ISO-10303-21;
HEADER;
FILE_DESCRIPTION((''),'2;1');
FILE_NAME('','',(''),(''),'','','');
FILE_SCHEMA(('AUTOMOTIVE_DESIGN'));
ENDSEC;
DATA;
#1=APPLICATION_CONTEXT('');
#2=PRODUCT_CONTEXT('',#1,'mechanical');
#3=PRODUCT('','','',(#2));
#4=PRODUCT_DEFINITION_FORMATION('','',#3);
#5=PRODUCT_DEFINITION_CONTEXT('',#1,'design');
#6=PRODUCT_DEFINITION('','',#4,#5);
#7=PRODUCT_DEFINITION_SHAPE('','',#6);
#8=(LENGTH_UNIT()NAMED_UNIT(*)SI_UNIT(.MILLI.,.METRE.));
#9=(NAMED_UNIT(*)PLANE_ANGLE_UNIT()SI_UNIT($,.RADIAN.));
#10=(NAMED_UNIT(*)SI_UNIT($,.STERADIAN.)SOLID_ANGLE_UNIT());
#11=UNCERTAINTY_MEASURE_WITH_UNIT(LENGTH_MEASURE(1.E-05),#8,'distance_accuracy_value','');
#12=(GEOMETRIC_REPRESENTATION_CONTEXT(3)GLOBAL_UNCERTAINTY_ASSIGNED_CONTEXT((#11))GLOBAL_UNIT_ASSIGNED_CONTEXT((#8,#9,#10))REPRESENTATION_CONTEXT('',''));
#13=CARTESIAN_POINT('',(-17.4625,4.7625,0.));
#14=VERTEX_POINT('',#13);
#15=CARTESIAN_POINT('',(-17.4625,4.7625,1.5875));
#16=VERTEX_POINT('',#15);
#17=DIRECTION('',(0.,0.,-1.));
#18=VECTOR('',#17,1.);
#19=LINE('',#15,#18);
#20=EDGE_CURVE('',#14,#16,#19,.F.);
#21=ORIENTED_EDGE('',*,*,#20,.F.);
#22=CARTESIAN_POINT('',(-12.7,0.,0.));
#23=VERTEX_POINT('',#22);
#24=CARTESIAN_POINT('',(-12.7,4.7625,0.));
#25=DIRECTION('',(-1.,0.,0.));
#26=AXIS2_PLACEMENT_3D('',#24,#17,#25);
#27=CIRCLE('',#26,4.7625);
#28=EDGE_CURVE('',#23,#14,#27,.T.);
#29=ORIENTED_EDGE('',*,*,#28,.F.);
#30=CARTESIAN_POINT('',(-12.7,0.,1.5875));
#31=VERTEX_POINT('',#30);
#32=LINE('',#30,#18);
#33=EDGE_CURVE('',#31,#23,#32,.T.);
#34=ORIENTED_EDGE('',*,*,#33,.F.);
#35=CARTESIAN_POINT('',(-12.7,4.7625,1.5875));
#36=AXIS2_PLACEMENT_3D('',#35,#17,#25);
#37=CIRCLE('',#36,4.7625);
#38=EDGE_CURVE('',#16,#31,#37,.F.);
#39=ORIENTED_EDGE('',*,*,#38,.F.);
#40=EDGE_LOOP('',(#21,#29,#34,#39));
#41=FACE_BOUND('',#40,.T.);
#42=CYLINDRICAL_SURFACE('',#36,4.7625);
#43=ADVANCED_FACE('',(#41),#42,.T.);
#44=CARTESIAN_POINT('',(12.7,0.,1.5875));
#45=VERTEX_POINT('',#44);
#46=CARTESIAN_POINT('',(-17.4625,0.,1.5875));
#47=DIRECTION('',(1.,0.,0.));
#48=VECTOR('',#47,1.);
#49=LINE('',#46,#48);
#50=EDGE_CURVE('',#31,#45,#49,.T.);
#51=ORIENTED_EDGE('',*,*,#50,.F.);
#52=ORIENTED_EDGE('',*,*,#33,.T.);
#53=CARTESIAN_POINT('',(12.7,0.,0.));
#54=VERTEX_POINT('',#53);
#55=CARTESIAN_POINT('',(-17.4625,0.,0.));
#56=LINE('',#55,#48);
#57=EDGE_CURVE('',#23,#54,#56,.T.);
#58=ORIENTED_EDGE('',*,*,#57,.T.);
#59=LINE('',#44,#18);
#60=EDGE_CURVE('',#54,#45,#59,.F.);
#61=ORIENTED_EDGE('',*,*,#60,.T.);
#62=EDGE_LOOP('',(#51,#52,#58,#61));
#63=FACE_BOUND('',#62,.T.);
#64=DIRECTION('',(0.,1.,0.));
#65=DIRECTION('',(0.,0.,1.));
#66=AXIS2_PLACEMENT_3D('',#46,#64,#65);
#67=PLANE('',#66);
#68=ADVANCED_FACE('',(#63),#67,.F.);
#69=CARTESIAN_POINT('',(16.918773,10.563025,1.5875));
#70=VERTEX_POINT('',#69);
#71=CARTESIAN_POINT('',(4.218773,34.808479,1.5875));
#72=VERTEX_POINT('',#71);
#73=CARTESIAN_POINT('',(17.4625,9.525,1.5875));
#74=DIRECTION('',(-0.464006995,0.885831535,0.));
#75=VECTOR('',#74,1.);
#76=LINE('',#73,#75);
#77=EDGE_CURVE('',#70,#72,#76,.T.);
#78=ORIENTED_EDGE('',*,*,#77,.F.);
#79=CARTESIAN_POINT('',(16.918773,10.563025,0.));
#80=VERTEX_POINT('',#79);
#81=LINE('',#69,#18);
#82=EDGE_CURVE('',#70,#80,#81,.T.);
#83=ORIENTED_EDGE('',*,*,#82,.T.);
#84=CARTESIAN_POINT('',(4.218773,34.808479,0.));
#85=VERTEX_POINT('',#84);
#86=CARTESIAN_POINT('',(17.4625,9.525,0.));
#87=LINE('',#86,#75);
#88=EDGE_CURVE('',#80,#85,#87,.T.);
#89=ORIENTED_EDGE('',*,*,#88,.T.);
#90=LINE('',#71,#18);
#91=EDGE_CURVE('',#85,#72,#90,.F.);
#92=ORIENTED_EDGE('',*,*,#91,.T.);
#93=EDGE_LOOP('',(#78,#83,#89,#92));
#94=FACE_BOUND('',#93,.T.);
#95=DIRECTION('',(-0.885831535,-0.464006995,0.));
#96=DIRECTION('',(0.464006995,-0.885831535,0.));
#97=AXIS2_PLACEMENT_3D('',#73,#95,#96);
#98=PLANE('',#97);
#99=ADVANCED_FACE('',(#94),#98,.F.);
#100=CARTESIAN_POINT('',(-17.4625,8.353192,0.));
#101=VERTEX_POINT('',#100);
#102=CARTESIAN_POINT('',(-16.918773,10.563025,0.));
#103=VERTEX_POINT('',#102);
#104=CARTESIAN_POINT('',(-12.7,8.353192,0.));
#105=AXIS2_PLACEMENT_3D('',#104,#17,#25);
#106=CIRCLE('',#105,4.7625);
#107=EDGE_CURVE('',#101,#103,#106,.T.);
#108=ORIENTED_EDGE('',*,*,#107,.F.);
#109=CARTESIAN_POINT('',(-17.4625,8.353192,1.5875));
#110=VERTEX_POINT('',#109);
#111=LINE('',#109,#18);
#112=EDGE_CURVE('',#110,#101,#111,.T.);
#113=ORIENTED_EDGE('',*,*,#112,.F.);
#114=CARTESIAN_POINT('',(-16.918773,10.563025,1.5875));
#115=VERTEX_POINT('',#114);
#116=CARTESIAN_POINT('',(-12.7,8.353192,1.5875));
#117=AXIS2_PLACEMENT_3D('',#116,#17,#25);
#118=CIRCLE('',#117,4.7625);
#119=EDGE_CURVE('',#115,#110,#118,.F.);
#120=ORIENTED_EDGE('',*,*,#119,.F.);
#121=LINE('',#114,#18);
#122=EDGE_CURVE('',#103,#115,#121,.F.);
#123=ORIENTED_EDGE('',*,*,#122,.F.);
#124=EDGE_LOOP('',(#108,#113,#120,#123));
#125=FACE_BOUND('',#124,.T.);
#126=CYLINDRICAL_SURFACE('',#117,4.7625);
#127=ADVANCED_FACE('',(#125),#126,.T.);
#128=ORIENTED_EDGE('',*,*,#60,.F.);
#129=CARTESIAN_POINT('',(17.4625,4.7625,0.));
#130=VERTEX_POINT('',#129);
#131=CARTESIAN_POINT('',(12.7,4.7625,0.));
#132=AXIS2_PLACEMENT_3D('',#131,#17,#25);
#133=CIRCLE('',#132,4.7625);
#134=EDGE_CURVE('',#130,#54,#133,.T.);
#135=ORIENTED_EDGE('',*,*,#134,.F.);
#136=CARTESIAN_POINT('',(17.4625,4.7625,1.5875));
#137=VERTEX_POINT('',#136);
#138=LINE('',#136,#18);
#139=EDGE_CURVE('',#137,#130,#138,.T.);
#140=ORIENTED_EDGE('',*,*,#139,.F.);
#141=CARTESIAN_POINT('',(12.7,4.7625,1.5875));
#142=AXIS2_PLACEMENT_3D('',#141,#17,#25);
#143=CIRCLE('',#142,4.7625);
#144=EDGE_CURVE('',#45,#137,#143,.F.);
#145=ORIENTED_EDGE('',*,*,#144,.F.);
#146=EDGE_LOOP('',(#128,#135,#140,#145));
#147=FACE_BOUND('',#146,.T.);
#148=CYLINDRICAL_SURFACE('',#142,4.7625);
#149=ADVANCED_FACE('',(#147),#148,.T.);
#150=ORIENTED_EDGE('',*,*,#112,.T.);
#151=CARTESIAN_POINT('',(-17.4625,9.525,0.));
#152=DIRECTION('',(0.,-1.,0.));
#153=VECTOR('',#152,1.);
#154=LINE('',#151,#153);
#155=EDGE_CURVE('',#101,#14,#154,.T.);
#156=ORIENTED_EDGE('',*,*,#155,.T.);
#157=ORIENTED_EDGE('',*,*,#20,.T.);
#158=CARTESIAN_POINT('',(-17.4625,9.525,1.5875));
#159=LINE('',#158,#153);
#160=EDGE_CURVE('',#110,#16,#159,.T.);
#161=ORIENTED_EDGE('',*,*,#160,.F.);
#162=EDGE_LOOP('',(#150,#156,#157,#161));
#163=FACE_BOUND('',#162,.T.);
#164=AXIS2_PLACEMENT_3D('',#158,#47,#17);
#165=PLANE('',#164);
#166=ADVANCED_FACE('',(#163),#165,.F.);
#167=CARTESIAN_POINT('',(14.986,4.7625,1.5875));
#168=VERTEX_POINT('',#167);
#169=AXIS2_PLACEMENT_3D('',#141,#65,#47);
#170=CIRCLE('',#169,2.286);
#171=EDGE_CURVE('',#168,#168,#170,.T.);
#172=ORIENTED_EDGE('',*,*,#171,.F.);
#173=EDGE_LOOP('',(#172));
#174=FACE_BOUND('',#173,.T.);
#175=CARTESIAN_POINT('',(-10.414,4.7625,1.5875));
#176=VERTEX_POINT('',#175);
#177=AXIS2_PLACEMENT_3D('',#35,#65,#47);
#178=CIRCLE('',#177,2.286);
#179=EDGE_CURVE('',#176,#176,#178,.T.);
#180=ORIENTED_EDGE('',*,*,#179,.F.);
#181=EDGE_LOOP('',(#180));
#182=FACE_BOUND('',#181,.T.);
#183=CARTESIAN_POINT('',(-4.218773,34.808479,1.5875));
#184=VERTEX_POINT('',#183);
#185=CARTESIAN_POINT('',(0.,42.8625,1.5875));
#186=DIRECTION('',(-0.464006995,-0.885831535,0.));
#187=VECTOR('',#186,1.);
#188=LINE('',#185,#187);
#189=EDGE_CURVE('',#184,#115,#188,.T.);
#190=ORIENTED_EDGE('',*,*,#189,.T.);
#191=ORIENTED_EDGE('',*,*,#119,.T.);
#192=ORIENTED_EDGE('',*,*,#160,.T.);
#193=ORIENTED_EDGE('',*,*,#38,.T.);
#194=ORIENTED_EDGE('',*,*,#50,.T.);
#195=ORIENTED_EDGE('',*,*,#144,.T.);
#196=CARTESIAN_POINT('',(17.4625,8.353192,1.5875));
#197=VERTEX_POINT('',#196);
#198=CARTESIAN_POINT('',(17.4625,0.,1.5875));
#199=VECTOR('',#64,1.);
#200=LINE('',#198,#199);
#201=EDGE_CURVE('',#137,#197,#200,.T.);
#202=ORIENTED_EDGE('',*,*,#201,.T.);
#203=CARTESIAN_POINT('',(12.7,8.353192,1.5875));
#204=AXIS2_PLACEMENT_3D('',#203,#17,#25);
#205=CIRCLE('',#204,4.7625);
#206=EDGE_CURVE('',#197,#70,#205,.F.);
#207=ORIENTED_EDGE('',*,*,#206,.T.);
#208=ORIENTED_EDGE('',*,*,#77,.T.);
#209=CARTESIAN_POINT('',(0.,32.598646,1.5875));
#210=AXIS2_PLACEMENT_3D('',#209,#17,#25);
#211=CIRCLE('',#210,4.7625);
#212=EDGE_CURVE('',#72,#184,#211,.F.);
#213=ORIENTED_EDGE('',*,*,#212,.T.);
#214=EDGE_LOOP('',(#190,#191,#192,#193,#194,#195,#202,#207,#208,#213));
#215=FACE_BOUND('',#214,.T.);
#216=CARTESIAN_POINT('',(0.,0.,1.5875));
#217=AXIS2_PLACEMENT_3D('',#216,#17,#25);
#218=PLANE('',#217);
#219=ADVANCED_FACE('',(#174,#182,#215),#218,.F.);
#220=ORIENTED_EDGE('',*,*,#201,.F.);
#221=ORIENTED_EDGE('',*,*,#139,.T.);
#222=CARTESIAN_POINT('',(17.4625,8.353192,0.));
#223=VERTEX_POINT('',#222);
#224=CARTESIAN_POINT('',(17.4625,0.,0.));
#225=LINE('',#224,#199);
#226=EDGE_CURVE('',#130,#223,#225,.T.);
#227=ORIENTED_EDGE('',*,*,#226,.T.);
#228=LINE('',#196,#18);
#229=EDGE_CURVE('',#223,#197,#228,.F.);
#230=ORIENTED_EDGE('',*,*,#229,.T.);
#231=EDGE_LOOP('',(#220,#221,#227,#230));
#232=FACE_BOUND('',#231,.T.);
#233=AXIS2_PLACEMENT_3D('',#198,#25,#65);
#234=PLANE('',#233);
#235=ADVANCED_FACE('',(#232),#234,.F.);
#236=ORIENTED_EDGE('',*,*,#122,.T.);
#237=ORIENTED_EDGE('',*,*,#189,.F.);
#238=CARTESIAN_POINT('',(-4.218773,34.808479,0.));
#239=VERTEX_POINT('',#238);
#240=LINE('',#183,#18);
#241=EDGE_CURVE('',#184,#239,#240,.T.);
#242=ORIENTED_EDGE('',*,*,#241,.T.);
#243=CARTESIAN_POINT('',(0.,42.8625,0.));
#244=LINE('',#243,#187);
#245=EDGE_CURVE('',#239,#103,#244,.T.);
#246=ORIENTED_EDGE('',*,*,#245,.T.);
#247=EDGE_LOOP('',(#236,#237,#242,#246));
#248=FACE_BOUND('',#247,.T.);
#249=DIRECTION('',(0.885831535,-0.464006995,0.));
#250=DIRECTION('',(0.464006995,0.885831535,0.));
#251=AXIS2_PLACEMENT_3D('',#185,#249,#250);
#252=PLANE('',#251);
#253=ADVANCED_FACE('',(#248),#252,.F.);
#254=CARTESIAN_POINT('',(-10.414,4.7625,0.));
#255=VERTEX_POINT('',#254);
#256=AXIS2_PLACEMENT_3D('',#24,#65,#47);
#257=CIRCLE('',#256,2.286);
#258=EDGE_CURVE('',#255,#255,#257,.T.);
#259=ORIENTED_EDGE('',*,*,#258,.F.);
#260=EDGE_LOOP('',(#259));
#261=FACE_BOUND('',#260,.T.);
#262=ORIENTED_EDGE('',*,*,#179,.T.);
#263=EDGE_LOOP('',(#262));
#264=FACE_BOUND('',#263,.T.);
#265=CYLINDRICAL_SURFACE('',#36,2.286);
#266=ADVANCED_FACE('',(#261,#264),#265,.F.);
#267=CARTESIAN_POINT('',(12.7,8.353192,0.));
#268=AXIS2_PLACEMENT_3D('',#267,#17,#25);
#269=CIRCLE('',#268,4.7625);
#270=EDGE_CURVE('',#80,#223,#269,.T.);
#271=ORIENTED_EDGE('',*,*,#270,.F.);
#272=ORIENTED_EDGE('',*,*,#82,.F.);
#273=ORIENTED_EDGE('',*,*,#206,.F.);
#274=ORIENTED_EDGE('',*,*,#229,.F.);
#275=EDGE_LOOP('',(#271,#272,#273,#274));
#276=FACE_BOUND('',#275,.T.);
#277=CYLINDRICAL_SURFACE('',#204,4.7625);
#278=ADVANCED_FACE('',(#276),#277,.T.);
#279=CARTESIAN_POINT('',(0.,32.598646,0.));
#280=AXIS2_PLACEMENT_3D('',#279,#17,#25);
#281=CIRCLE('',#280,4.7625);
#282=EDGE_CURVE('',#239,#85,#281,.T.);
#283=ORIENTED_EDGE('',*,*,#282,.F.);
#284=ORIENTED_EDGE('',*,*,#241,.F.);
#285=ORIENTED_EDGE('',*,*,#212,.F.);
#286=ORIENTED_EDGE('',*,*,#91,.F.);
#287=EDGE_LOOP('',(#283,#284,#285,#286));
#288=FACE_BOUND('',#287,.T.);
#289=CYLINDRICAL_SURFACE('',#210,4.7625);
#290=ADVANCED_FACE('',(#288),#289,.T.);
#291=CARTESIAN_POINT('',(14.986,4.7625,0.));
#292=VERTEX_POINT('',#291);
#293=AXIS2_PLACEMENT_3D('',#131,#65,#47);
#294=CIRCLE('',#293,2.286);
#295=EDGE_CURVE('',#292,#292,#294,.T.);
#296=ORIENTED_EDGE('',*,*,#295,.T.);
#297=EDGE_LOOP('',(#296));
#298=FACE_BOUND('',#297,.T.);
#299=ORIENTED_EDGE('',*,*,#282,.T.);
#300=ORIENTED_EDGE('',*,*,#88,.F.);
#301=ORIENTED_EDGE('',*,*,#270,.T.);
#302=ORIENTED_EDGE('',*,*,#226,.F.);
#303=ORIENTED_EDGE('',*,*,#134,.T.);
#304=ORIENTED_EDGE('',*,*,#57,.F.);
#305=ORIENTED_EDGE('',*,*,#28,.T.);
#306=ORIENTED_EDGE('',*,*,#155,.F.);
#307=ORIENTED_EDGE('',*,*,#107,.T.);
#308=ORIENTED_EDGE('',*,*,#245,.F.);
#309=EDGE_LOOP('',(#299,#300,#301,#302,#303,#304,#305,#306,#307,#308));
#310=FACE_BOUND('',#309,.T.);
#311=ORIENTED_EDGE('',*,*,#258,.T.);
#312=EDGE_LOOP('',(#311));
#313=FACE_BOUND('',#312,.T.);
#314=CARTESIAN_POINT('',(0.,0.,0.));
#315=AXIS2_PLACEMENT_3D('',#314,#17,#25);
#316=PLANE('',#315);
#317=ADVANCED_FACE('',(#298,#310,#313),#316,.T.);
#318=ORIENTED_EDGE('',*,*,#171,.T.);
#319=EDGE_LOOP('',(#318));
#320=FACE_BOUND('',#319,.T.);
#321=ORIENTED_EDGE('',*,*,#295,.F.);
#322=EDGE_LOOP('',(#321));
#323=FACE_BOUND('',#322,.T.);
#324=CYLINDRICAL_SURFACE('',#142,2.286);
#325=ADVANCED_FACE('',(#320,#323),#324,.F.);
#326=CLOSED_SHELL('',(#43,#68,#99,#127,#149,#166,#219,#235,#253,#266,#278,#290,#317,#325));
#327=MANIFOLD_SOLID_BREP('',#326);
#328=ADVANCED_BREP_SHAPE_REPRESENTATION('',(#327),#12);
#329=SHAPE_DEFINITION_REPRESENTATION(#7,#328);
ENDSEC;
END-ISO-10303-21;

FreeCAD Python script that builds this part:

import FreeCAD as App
import Part
import Sketcher

V = App.Vector
Q = App.Units.Quantity


def edges_at(feature, points):
    """Names of the edges that pass closest to the given points."""
    edges = feature.Shape.Edges
    near = lambda p: min(range(len(edges)), key=lambda i: edges[i].distToShape(Part.Vertex(*p))[0])
    return sorted({f"Edge{near(p) + 1}" for p in points})


def add_polygon(sketch, points):
    """Adds a closed chain of lines whose ends are joined by coincident constraints."""
    first, n = sketch.GeometryCount, len(points)
    for a, b in zip(points, points[1:] + points[:1]):
        sketch.addGeometry(Part.LineSegment(App.Vector(*a, 0), App.Vector(*b, 0)), False)
    for i in range(n):
        sketch.addConstraint(Sketcher.Constraint("Coincident", first + i, 2, first + (i + 1) % n, 1))

doc = App.newDocument("Part")
body = doc.addObject("PartDesign::Body", "Body")

sketch1 = doc.addObject("Sketcher::SketchObject", "Sketch")
body.addObject(sketch1)
sketch1.AttachmentSupport = (doc.XY_Plane, [""])
sketch1.MapMode = "FlatFace"
add_polygon(sketch1, [(-17.4625, 0), (17.4625, 0), (17.4625, 9.525), (0, 42.8625), (-17.4625, 9.525)])
sketch1.addGeometry(Part.Circle(V(-12.7, 4.7625, 0), V(0, 0, 1), 2.286), False)
sketch1.addGeometry(Part.Circle(V(12.7, 4.7625, 0), V(0, 0, 1), 2.286), False)
sketch1.addConstraint([
    Sketcher.Constraint("Horizontal", 0),
    Sketcher.Constraint("Vertical", 1),
    Sketcher.Constraint("Vertical", 4),
    Sketcher.Constraint("Equal", 5, 6),
    Sketcher.Constraint("Symmetric", 0, 2, 4, 2, -1, 1),
    Sketcher.Constraint("Symmetric", 5, 3, 6, 3, -2),
    Sketcher.Constraint("PointOnObject", 2, 2, -2),
    Sketcher.Constraint("Horizontal", 1, 2, 3, 2),
    Sketcher.Constraint("Diameter", 5, Q("0.18 in")),
    Sketcher.Constraint("DistanceX", 5, 3, 6, 3, Q("1 in")),
    Sketcher.Constraint("DistanceY", 5, 3, 2, 2, Q("1.5 in")),
    Sketcher.Constraint("DistanceX", 0, 1, 0, 2, Q("1.375 in")),
    Sketcher.Constraint("DistanceY", 1, 1, 1, 2, Q("0.375 in")),
    Sketcher.Constraint("DistanceY", -1, 1, 5, 3, Q("0.1875 in")),
])
pad1 = doc.addObject("PartDesign::Pad", "Pad")
body.addObject(pad1)
pad1.Profile = sketch1
pad1.Length = Q("0.0625 in")
doc.recompute()

fillet = doc.addObject("PartDesign::Fillet", "Fillet")
body.addObject(fillet)
fillet.Base = (pad1, edges_at(pad1, [
    (17.462, 0, 0.794),
    (-17.462, 0, 0.794),
    (-17.462, 9.525, 0.794),
    (0, 42.862, 0.794),
    (17.462, 9.525, 0.794),
]))
fillet.Radius = Q("0.1875 in")

doc.recompute()
